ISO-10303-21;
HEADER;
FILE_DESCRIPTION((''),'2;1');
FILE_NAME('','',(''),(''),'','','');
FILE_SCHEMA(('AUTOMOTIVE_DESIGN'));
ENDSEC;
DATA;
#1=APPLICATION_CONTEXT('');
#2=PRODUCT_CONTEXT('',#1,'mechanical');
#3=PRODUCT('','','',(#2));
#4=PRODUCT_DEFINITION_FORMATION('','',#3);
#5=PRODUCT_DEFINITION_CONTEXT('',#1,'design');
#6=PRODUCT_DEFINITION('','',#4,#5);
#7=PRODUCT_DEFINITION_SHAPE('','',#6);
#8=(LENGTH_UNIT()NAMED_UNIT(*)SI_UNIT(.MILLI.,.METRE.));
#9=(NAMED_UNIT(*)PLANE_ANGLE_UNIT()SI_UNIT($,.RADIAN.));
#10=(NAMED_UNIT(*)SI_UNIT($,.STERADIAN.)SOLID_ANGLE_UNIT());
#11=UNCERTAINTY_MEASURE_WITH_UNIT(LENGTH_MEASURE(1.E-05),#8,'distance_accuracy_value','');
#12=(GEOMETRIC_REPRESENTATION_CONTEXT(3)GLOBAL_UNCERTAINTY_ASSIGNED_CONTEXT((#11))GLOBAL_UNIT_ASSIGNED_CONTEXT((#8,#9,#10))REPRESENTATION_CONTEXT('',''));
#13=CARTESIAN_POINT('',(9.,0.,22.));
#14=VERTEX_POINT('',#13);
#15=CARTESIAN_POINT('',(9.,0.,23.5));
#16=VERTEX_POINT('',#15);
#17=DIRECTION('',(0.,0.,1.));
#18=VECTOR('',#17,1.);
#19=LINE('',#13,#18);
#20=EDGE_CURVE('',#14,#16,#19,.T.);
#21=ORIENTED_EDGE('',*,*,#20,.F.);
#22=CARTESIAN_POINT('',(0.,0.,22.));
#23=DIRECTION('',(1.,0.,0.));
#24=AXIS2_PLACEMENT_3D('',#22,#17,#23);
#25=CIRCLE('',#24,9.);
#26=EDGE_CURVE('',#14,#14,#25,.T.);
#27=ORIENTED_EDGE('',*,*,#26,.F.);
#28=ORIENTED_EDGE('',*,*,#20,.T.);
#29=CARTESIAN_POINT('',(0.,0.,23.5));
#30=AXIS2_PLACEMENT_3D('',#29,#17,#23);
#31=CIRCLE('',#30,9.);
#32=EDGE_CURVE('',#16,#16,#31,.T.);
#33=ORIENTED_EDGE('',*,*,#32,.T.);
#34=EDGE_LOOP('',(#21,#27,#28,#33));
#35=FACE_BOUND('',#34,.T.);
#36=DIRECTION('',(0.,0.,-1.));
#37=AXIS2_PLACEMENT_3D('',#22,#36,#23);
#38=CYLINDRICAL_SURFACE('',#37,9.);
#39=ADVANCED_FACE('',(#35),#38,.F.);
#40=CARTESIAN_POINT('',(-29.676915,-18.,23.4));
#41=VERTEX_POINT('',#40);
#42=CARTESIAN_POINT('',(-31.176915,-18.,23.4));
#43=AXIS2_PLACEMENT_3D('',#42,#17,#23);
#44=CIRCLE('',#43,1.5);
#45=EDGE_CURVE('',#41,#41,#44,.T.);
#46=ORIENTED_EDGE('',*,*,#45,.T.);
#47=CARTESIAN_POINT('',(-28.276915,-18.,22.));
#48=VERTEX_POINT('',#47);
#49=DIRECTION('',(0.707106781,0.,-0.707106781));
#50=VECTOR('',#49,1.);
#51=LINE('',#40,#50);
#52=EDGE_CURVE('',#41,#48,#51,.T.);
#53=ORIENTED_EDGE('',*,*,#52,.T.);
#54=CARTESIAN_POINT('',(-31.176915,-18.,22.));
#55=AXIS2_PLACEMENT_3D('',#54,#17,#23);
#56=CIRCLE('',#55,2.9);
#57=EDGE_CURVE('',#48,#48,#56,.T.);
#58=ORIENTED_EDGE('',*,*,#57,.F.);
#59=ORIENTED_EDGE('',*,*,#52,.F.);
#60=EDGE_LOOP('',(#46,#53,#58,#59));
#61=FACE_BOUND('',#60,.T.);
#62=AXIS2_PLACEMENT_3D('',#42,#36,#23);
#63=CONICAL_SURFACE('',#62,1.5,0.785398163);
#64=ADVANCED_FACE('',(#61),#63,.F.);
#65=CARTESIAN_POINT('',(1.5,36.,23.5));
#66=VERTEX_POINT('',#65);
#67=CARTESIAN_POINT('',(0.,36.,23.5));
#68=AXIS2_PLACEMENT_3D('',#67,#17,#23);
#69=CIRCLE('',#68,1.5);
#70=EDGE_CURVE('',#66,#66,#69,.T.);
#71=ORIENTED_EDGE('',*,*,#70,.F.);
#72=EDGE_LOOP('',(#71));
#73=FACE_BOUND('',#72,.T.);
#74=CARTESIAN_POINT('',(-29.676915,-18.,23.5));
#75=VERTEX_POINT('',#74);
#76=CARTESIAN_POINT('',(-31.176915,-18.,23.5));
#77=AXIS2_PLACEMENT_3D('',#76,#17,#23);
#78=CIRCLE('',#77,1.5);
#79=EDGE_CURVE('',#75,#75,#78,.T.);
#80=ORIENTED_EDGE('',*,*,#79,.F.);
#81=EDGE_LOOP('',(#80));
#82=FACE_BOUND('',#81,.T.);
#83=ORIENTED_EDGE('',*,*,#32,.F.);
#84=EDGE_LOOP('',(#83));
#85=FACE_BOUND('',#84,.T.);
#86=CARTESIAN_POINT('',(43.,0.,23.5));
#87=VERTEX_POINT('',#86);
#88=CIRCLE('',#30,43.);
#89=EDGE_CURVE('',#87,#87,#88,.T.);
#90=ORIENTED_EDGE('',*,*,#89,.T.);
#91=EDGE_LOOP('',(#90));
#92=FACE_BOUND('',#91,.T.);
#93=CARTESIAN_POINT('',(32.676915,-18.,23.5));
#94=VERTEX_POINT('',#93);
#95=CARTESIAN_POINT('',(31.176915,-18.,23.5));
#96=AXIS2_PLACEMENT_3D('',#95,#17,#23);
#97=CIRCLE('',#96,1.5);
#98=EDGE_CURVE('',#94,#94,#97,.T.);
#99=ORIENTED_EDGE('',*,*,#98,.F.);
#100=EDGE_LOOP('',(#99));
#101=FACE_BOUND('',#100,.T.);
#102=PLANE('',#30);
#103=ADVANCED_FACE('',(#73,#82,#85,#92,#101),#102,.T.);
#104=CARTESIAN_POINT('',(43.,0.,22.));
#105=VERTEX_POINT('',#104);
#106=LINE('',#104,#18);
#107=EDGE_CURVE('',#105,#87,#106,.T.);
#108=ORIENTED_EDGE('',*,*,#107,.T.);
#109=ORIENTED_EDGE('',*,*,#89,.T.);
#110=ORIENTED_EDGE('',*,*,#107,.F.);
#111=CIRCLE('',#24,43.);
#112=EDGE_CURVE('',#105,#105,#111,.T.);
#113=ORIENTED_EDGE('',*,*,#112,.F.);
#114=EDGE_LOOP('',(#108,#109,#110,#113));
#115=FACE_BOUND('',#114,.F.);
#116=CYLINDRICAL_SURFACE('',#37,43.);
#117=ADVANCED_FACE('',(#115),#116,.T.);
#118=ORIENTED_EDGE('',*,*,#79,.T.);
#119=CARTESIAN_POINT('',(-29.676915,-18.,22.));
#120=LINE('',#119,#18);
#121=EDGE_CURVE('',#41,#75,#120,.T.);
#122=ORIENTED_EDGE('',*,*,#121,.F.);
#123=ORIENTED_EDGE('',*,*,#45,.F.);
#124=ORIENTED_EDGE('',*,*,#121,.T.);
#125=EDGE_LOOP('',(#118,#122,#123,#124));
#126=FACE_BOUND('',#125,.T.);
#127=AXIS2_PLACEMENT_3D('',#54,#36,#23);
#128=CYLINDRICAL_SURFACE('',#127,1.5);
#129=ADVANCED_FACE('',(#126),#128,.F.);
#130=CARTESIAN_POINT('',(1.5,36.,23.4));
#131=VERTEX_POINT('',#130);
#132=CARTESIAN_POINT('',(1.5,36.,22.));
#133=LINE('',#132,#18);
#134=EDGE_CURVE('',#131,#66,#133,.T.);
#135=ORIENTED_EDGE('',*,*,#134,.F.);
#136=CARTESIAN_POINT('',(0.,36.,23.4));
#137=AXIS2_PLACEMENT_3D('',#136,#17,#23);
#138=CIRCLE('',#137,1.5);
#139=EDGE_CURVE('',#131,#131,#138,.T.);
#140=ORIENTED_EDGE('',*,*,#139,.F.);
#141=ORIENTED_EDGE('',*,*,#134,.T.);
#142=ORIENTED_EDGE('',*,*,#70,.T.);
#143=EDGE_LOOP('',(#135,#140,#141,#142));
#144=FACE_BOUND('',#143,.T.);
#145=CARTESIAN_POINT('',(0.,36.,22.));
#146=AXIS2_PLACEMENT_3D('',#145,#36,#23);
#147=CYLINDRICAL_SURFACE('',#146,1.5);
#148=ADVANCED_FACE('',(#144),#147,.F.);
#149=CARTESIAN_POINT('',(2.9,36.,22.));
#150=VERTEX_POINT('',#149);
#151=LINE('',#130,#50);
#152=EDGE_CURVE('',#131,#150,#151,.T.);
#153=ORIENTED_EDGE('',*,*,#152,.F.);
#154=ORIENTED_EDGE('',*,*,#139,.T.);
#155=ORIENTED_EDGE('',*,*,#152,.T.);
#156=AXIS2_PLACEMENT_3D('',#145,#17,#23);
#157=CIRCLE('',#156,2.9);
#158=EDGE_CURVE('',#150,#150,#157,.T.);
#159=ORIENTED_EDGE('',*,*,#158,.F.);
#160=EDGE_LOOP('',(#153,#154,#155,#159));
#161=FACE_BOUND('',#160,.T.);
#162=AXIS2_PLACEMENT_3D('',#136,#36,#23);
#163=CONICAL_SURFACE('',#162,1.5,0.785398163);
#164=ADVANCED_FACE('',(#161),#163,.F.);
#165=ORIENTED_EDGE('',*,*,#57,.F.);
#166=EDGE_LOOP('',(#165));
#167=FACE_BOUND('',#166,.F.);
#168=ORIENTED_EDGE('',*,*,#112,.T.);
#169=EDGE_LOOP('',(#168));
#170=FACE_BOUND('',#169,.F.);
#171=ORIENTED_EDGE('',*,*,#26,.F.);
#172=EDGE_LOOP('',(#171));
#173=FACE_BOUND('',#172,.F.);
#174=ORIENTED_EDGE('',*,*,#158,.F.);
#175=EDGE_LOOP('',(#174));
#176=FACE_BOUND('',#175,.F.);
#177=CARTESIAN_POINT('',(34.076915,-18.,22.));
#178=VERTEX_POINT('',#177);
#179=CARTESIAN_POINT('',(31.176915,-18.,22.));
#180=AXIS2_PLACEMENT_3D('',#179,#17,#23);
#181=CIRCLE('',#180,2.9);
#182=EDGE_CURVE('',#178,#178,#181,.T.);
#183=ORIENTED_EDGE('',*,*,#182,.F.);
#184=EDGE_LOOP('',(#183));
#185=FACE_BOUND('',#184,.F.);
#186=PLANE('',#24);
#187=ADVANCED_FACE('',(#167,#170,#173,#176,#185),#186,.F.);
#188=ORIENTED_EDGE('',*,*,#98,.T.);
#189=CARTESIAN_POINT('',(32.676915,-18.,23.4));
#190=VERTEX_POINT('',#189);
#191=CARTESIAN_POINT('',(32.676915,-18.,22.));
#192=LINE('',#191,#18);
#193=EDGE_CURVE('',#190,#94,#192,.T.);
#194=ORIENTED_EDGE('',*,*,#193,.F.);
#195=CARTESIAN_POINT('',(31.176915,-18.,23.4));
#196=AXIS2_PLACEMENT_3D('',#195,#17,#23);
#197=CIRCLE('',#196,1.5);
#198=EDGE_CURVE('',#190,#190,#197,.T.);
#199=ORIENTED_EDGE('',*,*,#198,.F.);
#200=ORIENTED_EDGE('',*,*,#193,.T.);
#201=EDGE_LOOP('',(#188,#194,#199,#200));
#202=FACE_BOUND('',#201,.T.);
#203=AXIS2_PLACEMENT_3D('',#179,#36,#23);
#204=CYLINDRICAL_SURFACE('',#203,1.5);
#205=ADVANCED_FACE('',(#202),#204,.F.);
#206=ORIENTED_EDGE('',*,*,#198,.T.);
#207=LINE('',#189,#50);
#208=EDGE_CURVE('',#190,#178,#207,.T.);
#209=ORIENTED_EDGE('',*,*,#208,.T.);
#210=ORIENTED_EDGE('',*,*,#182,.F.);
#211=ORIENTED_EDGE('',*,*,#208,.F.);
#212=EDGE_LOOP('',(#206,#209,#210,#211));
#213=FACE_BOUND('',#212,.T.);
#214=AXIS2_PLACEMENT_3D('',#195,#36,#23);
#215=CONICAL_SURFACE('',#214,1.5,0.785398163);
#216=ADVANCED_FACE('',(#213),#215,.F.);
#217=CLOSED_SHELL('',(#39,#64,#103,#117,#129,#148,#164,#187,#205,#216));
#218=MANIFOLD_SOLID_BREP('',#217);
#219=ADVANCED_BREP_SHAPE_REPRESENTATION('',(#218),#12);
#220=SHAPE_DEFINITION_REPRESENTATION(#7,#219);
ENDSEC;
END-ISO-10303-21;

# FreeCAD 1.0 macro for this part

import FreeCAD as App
import Part
import Sketcher
from FreeCAD import Vector
Q = App.Units.Quantity


def edges_at(feature, points):
    """Names of the edges that pass closest to the given points."""
    edges = feature.Shape.Edges
    near = lambda p: min(range(len(edges)), key=lambda i: edges[i].distToShape(Part.Vertex(*p))[0])
    return sorted({f"Edge{near(p) + 1}" for p in points})

doc = App.newDocument("Part")
params = doc.addObject("Spreadsheet::Sheet", "Params")
for row, (alias, value) in enumerate([
    ("sketch1_diameter", "86 mm"),
    ("sketch1_diameter2", "3 mm"),
    ("sketch1_diameter3", "18 mm"),
    ("pad1_length", "1.5 mm"),
    ("chamfer_size", "1.4 mm"),
], start=1):
    params.set(f"A{row}", alias)
    params.set(f"B{row}", "=" + value)
    params.setAlias(f"B{row}", alias)

body = doc.addObject("PartDesign::Body", "Body")

# Sketch on XY plane
sketch1 = doc.addObject("Sketcher::SketchObject", "Sketch")
body.addObject(sketch1)
sketch1.AttachmentSupport = (doc.XY_Plane, [""])
sketch1.MapMode = "FlatFace"
sketch1.AttachmentOffset = App.Placement(Vector(0, 0, 22), App.Rotation())
sketch1.addGeometry([
    Part.Circle(Vector(0, 0, 0), Vector(0, 0, 1), 43),  # 0
    Part.Circle(Vector(-31.176915, -18, 0), Vector(0, 0, 1), 1.5),  # 1
    Part.Circle(Vector(31.176915, -18, 0), Vector(0, 0, 1), 1.5),  # 2
    Part.Circle(Vector(0, 0, 0), Vector(0, 0, 1), 9),  # 3
    Part.Circle(Vector(0, 36, 0), Vector(0, 0, 1), 1.5),  # 4
], False)
sketch1.addConstraint([
    Sketcher.Constraint("Coincident", 0, 3, -1, 1),
    Sketcher.Constraint("Coincident", 3, 3, -1, 1),
    Sketcher.Constraint("Equal", 1, 2),
    Sketcher.Constraint("Equal", 2, 4),
    Sketcher.Constraint("Symmetric", 1, 3, 2, 3, -2),
    Sketcher.Constraint("PointOnObject", 4, 3, -2),
    Sketcher.Constraint("Diameter", 0, Q("86 mm")),
    Sketcher.Constraint("Diameter", 1, Q("3 mm")),
    Sketcher.Constraint("Diameter", 3, Q("18 mm")),
    Sketcher.Constraint("DistanceY", 1, 3, -1, 1, Q("18 mm")),
    Sketcher.Constraint("DistanceY", -1, 1, 4, 3, Q("36 mm")),
    Sketcher.Constraint("DistanceX", 1, 3, 2, 3, Q("62.35383 mm")),
])
sketch1.setExpression("Constraints[6]", "Params.sketch1_diameter")
sketch1.setExpression("Constraints[7]", "Params.sketch1_diameter2")
sketch1.setExpression("Constraints[8]", "Params.sketch1_diameter3")
pad1 = doc.addObject("PartDesign::Pad", "Pad")
body.addObject(pad1)
pad1.Profile = sketch1
pad1.setExpression("Length", "Params.pad1_length")
doc.recompute()

chamfer = doc.addObject("PartDesign::Chamfer", "Chamfer")
body.addObject(chamfer)
chamfer.Base = (pad1, edges_at(pad1, [(-32.677, -18, 22), (-1.5, 36, 22), (29.677, -18, 22)]))
chamfer.setExpression("Size", "Params.chamfer_size")

doc.recompute()
